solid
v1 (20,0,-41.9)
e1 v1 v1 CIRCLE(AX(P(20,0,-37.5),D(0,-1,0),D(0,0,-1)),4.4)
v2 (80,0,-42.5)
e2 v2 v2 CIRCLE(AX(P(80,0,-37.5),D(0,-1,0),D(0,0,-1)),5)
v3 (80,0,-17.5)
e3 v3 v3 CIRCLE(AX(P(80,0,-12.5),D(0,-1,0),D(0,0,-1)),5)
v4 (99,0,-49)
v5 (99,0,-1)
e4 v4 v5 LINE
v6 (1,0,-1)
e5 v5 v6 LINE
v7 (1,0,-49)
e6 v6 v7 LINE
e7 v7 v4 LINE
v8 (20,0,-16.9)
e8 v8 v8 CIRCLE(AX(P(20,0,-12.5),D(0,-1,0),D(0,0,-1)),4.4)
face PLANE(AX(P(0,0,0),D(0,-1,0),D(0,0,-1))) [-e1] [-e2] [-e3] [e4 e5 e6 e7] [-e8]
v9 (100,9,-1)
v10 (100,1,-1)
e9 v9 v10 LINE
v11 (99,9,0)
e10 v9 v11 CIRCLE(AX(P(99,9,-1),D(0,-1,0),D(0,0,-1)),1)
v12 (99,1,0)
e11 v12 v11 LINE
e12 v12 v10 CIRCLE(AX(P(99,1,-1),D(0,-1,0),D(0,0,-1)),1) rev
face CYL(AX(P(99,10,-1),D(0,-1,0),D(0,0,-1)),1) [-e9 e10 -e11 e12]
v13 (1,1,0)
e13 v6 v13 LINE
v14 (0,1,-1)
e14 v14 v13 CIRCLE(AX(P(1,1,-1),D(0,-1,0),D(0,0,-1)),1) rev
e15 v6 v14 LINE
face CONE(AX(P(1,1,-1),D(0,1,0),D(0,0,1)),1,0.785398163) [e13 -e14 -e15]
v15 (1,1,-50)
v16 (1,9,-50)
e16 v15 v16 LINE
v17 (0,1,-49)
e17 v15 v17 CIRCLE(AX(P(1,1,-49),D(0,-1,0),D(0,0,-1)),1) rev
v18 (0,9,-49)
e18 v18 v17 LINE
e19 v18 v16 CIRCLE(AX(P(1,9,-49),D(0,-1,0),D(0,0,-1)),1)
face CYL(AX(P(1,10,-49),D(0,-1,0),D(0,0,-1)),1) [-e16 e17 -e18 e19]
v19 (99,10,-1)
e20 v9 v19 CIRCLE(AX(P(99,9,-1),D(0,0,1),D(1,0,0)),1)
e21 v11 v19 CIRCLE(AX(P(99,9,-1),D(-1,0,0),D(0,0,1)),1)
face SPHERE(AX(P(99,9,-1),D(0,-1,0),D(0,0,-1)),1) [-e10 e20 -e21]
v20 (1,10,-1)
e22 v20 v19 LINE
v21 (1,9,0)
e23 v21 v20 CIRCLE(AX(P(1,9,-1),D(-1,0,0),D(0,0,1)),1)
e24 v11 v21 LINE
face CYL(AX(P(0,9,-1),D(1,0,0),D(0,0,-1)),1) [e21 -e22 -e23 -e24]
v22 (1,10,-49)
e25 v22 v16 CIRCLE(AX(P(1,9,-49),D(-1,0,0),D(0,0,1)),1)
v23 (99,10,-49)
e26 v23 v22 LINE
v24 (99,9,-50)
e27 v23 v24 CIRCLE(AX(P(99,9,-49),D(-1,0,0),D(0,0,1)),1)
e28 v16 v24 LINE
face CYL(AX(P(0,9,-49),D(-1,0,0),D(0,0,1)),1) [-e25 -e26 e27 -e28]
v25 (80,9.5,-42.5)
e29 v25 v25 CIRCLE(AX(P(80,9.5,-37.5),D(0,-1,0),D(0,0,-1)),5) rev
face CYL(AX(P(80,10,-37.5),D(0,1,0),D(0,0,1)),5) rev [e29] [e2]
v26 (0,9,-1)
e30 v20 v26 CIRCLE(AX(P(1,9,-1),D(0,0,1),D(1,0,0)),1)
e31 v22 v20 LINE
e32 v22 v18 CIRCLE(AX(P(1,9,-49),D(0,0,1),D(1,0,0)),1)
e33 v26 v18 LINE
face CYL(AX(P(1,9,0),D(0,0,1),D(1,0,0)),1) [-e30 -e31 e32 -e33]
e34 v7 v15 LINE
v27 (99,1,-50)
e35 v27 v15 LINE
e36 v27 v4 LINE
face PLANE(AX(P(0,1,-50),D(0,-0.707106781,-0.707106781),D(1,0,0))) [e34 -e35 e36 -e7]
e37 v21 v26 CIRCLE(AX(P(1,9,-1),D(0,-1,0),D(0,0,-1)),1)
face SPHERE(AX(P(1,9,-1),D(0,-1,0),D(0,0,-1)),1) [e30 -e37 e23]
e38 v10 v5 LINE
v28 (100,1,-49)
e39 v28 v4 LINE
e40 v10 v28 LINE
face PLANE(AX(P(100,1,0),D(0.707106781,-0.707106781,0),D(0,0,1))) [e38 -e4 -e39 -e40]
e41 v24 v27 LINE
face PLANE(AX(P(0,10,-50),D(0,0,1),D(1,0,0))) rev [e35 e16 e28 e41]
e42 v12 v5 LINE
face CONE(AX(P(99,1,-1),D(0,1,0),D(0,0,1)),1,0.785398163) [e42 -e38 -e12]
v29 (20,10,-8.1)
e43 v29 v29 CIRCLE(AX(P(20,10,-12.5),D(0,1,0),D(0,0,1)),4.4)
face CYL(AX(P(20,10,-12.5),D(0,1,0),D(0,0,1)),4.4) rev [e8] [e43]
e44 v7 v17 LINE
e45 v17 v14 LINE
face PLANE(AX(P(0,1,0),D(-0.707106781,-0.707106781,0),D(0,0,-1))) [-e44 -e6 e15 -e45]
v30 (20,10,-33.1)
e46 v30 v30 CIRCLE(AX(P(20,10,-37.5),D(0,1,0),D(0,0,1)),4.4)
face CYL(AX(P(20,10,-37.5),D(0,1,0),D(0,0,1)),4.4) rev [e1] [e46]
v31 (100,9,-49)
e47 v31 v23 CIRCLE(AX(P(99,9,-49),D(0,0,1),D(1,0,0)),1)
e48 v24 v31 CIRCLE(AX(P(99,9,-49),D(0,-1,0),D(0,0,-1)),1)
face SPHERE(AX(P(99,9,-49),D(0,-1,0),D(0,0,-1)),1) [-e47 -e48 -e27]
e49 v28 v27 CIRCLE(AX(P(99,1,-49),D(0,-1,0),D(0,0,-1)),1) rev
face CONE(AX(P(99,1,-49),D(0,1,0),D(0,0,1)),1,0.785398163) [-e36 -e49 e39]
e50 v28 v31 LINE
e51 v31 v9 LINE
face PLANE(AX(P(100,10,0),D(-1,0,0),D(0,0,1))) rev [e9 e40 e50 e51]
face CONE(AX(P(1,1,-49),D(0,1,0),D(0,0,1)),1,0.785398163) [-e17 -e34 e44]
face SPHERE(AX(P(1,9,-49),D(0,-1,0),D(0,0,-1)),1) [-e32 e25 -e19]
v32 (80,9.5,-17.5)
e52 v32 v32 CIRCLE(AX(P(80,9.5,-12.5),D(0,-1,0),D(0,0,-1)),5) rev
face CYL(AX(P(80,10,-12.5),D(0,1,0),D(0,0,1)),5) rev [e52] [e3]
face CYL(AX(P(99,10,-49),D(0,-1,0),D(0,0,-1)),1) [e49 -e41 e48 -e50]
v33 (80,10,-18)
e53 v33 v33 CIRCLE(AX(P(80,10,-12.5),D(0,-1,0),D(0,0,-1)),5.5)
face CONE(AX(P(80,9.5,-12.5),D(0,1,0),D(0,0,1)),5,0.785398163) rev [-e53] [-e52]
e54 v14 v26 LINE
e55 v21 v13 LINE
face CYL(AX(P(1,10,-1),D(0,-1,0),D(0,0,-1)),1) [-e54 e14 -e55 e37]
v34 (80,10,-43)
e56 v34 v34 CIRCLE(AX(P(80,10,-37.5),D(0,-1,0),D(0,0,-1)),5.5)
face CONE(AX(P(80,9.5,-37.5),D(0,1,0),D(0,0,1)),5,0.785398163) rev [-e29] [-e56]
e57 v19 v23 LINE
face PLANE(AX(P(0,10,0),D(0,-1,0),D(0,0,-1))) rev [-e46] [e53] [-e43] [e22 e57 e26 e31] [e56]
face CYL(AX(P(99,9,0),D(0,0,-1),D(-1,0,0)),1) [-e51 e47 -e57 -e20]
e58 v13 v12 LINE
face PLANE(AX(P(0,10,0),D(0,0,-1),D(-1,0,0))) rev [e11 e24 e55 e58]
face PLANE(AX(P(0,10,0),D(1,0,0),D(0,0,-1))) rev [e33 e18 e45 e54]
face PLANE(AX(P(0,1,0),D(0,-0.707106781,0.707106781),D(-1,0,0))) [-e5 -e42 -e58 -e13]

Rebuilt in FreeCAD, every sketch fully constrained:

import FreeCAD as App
import Part
import Sketcher
from FreeCAD import Vector


def edges_at(feature, points):
    """Names of the edges that pass closest to the given points."""
    edges = feature.Shape.Edges
    near = lambda p: min(range(len(edges)), key=lambda i: edges[i].distToShape(Part.Vertex(*p))[0])
    return sorted({f"Edge{near(p) + 1}" for p in points})


def add_polygon(sketch, points):
    """Adds a closed chain of lines whose ends are joined by coincident constraints."""
    first, n = sketch.GeometryCount, len(points)
    for a, b in zip(points, points[1:] + points[:1]):
        sketch.addGeometry(Part.LineSegment(App.Vector(*a, 0), App.Vector(*b, 0)), False)
    for i in range(n):
        sketch.addConstraint(Sketcher.Constraint("Coincident", first + i, 2, first + (i + 1) % n, 1))

doc = App.newDocument("Part")
params = doc.addObject("Spreadsheet::Sheet", "Params")
for row, (alias, value) in enumerate([
    ("sketch1_width", "100 mm"),
    ("sketch1_height", "50 mm"),
    ("pad1_length", "10 mm"),
    ("sketch2_diameter", "10 mm"),
    ("hole_diameter", "10 mm"),
    ("hole_depth", "23.75 mm"),
    ("sketch3_diameter", "8.8 mm"),
    ("hole2_diameter", "8.8 mm"),
    ("hole2_depth", "23.75 mm"),
    ("fillet_radius", "1 mm"),
    ("chamfer_size", "1 mm"),
    ("chamfer2_size", "0.5 mm"),
    ("fillet2_radius", "1 mm"),
], start=1):
    params.set(f"A{row}", alias)
    params.set(f"B{row}", "=" + value)
    params.setAlias(f"B{row}", alias)

body = doc.addObject("PartDesign::Body", "Body")

# Sketch on XZ plane
sketch1 = doc.addObject("Sketcher::SketchObject", "Sketch")
body.addObject(sketch1)
sketch1.AttachmentSupport = (doc.XZ_Plane, [""])
sketch1.MapMode = "FlatFace"
add_polygon(sketch1, [(0, -50), (0, 0), (100, 0), (100, -50)])  # lines 0-3
sketch1.addConstraint([
    Sketcher.Constraint("Vertical", 0),
    Sketcher.Constraint("Horizontal", 1),
    Sketcher.Constraint("Vertical", 2),
    Sketcher.Constraint("Horizontal", 3),
    Sketcher.Constraint("Coincident", 0, 2, -1, 1),
    Sketcher.Constraint("DistanceX", 1, 1, 1, 2, 100.0),
    Sketcher.Constraint("DistanceY", 0, 1, 0, 2, 50.0),
])
sketch1.setExpression("Constraints[9]", "Params.sketch1_width")
sketch1.setExpression("Constraints[10]", "Params.sketch1_height")
pad1 = doc.addObject("PartDesign::Pad", "Pad")
body.addObject(pad1)
pad1.Profile = sketch1
pad1.setExpression("Length", "Params.pad1_length")
pad1.Reversed = True

# Sketch on XZ plane
sketch2 = doc.addObject("Sketcher::SketchObject", "Sketch001")
body.addObject(sketch2)
sketch2.AttachmentSupport = (doc.XZ_Plane, [""])
sketch2.MapMode = "FlatFace"
sketch2.AttachmentOffset = App.Placement(Vector(0, 0, -10), App.Rotation())
sketch2.addGeometry([
    Part.Circle(Vector(80, -38, 0), Vector(0, 0, 1), 5),
    Part.Circle(Vector(80, -12, 0), Vector(0, 0, 1), 5),
], False)
sketch2.addConstraint([
    Sketcher.Constraint("Equal", 0, 1),
    Sketcher.Constraint("Vertical", 0, 3, 1, 3),
    Sketcher.Constraint("Diameter", 0, 10.0),
    Sketcher.Constraint("DistanceX", -1, 1, 0, 3, 80.0),
    Sketcher.Constraint("DistanceY", 0, 3, 1, 3, 25.0),
    Sketcher.Constraint("DistanceY", 0, 3, -1, 1, 37.5),
])
sketch2.setExpression("Constraints[2]", "Params.sketch2_diameter")
doc.recompute()
hole = doc.addObject("PartDesign::Hole", "Hole")
body.addObject(hole)
hole.Profile = sketch2
hole.ThreadType = "None"
hole.setExpression("Diameter", "Params.hole_diameter")
hole.DepthType = "Dimension"
hole.setExpression("Depth", "Params.hole_depth")
hole.DrillPoint = "Angled"
hole.DrillPointAngle = 118
hole.Reversed = True

# Sketch on XZ plane
sketch3 = doc.addObject("Sketcher::SketchObject", "Sketch002")
body.addObject(sketch3)
sketch3.AttachmentSupport = (doc.XZ_Plane, [""])
sketch3.MapMode = "FlatFace"
sketch3.AttachmentOffset = App.Placement(Vector(0, 0, -10), App.Rotation())
sketch3.addGeometry([
    Part.Circle(Vector(20, -37.5, 0), Vector(0, 0, 1), 4.4),
    Part.Circle(Vector(20, -12.5, 0), Vector(0, 0, 1), 4.4),
], False)
sketch3.addConstraint([
    Sketcher.Constraint("Equal", 0, 1),
    Sketcher.Constraint("Vertical", 0, 3, 1, 3),
    Sketcher.Constraint("Diameter", 0, 8.8),
    Sketcher.Constraint("DistanceX", -1, 1, 0, 3, 20.0),
    Sketcher.Constraint("DistanceY", 0, 3, 1, 3, 25.0),
    Sketcher.Constraint("DistanceY", 0, 3, -1, 1, 37.5),
])
sketch3.setExpression("Constraints[2]", "Params.sketch3_diameter")
doc.recompute()
hole2 = doc.addObject("PartDesign::Hole", "Hole001")
body.addObject(hole2)
hole2.Profile = sketch3
hole2.ThreadType = "None"
hole2.setExpression("Diameter", "Params.hole2_diameter")
hole2.DepthType = "Dimension"
hole2.setExpression("Depth", "Params.hole2_depth")
hole2.DrillPoint = "Angled"
hole2.DrillPointAngle = 118
hole2.Reversed = True
doc.recompute()

fillet = doc.addObject("PartDesign::Fillet", "Fillet")
body.addObject(fillet)
fillet.Base = (hole2, edges_at(hole2, [
    (0, 5, -50),
    (100, 5, -50),
    (100, 5, 0),
    (0, 5, 0),
]))
fillet.setExpression("Radius", "Params.fillet_radius")
doc.recompute()

chamfer = doc.addObject("PartDesign::Chamfer", "Chamfer")
body.addObject(chamfer)
chamfer.Base = (fillet, edges_at(fillet, [
    (50, 0, -50),
    (0, 0, -25),
    (100, 0, -25),
    (50, 0, 0),
    (99.707, 0, -0.293),
    (0.293, 0, -0.293),
    (0.293, 0, -49.707),
    (99.707, 0, -49.707),
]))
chamfer.setExpression("Size", "Params.chamfer_size")
doc.recompute()

chamfer2 = doc.addObject("PartDesign::Chamfer", "Chamfer001")
body.addObject(chamfer2)
chamfer2.Base = (chamfer, edges_at(chamfer, [(80, 10, -7.5), (80, 10, -32.5)]))
chamfer2.setExpression("Size", "Params.chamfer2_size")
doc.recompute()

fillet2 = doc.addObject("PartDesign::Fillet", "Fillet001")
body.addObject(fillet2)
fillet2.Base = (chamfer2, edges_at(chamfer2, [
    (50, 10, -50),
    (100, 10, -25),
    (0, 10, -25),
    (50, 10, 0),
    (99.707, 10, -0.293),
    (0.293, 10, -0.293),
    (0.293, 10, -49.707),
    (99.707, 10, -49.707),
]))
fillet2.setExpression("Radius", "Params.fillet2_radius")

doc.recompute()
